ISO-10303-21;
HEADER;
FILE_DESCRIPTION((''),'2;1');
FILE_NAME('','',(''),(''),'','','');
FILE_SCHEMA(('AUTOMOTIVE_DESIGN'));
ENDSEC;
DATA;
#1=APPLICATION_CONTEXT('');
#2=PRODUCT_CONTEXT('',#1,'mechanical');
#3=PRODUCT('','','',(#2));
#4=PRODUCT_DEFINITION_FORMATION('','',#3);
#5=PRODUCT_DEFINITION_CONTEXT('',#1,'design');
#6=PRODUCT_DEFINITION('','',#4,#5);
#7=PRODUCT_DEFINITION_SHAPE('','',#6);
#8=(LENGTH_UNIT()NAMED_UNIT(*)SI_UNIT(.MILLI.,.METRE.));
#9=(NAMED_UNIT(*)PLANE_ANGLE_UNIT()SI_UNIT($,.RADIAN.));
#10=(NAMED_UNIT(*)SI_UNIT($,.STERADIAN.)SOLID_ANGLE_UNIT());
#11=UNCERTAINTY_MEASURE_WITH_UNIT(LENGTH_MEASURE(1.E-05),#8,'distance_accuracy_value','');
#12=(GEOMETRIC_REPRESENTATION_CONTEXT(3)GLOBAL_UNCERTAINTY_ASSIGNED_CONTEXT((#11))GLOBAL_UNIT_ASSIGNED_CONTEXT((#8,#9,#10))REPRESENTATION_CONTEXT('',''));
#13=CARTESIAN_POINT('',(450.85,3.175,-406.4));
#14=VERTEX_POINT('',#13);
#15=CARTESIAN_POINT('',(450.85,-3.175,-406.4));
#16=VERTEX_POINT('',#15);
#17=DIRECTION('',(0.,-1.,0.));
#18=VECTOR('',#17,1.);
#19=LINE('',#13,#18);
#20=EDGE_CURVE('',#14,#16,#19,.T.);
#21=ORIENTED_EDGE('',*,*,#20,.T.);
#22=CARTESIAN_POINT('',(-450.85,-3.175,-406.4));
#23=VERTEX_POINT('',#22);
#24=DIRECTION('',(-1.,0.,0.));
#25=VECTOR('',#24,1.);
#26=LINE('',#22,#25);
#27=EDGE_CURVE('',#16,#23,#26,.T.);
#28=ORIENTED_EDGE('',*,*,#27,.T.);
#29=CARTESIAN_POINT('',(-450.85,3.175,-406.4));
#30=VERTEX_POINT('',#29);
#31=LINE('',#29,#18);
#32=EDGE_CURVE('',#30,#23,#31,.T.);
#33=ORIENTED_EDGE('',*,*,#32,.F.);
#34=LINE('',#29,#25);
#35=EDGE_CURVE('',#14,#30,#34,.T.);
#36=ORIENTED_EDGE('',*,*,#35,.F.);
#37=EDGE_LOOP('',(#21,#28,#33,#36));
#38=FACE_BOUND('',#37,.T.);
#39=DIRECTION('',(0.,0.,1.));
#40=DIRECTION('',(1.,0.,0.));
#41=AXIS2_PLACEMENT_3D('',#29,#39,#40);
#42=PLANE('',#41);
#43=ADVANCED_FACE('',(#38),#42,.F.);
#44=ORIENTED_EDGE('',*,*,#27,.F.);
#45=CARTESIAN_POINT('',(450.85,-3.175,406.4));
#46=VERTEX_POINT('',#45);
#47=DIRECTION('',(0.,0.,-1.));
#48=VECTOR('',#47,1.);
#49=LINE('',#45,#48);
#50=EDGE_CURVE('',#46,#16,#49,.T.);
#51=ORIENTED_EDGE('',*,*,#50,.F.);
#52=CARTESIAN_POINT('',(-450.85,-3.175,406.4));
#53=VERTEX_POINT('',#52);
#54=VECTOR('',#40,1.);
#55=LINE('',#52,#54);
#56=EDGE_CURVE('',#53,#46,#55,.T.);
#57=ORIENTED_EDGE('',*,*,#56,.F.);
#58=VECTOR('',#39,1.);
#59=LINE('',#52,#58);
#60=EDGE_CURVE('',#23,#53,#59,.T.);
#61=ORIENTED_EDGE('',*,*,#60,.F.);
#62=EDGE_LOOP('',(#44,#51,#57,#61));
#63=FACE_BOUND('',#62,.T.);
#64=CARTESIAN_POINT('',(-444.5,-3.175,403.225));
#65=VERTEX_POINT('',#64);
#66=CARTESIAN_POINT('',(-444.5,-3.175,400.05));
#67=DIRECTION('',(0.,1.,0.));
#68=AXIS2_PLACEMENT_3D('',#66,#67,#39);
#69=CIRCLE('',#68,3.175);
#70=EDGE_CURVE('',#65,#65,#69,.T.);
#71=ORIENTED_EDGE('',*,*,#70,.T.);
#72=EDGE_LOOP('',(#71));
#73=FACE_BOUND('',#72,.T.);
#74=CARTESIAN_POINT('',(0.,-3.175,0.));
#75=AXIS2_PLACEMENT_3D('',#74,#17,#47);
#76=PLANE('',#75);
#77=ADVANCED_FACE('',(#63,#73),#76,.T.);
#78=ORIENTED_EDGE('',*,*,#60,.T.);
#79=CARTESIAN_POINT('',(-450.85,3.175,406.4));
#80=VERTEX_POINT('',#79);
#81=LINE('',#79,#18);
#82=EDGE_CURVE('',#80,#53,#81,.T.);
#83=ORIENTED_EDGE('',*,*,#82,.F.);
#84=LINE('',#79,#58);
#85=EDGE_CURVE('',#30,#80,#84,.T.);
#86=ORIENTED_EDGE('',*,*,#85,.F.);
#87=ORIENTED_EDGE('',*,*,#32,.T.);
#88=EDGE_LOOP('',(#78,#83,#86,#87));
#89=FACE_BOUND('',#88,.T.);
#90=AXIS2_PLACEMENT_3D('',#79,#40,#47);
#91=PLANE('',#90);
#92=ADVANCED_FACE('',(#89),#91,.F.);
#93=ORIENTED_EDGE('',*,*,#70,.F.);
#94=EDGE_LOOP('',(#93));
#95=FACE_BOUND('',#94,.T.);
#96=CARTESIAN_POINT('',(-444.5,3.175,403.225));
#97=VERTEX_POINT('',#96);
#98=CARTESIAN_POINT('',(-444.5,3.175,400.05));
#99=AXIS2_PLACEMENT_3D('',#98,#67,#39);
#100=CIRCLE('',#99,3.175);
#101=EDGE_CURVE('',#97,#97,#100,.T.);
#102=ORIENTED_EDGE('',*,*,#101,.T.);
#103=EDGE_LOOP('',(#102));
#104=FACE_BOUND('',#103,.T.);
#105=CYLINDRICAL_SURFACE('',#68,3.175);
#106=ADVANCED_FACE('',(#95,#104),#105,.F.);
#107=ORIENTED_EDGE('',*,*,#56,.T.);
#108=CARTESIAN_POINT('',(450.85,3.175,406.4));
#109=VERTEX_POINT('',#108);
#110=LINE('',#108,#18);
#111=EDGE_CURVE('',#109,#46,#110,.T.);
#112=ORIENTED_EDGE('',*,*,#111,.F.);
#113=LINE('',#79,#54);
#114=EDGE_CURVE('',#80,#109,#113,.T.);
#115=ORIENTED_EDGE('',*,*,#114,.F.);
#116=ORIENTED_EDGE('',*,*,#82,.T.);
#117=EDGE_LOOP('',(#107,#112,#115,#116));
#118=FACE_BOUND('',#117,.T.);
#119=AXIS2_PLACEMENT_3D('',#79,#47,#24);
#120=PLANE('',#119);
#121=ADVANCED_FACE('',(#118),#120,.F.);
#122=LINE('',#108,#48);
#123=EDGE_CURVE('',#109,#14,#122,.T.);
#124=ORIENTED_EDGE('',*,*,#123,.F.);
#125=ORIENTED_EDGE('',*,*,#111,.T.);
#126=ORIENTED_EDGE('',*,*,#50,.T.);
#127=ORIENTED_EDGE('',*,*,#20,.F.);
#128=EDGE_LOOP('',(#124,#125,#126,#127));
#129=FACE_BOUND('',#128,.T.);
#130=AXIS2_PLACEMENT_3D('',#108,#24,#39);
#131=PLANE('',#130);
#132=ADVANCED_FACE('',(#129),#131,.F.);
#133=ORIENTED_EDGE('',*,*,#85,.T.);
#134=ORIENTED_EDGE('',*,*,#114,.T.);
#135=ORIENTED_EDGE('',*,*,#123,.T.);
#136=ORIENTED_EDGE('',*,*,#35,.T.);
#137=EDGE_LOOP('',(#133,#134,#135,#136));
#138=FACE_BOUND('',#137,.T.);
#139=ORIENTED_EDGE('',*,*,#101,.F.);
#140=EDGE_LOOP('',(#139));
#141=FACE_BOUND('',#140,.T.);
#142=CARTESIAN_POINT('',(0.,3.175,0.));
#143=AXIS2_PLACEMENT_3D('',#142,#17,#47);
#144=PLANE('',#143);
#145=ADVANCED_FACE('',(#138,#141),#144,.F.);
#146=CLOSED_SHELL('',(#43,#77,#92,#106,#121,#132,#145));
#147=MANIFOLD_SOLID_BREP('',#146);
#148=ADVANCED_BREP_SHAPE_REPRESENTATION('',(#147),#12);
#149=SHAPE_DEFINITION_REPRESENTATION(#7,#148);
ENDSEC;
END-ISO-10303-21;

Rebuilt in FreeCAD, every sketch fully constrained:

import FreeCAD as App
import Part
import Sketcher
from FreeCAD import Vector
Q = App.Units.Quantity


def add_polygon(sketch, points):
    """Adds a closed chain of lines whose ends are joined by coincident constraints."""
    first, n = sketch.GeometryCount, len(points)
    for a, b in zip(points, points[1:] + points[:1]):
        sketch.addGeometry(Part.LineSegment(App.Vector(*a, 0), App.Vector(*b, 0)), False)
    for i in range(n):
        sketch.addConstraint(Sketcher.Constraint("Coincident", first + i, 2, first + (i + 1) % n, 1))

doc = App.newDocument("Part")
body = doc.addObject("PartDesign::Body", "Body")

# Sketch on XZ plane
sketch1 = doc.addObject("Sketcher::SketchObject", "Sketch")
body.addObject(sketch1)
sketch1.AttachmentSupport = (doc.XZ_Plane, [""])
sketch1.MapMode = "FlatFace"
add_polygon(sketch1, [(-451, -406), (-451, 406), (451, 406), (451, -406)])  # lines 0-3
sketch1.addConstraint([
    Sketcher.Constraint("Vertical", 0),
    Sketcher.Constraint("Horizontal", 1),
    Sketcher.Constraint("Vertical", 2),
    Sketcher.Constraint("Horizontal", 3),
    Sketcher.Constraint("Symmetric", 0, 2, 2, 2, -1, 1),
    Sketcher.Constraint("DistanceY", 0, 1, 0, 2, Q("32 in")),
    Sketcher.Constraint("DistanceX", 1, 1, 1, 2, Q("35.5 in")),
])
pad1 = doc.addObject("PartDesign::Pad", "Pad")
body.addObject(pad1)
pad1.Profile = sketch1
pad1.Length = Q("0.25 in")
pad1.Midplane = True

# Sketch on XZ plane
sketch2 = doc.addObject("Sketcher::SketchObject", "Sketch001")
body.addObject(sketch2)
sketch2.AttachmentSupport = (doc.XZ_Plane, [""])
sketch2.MapMode = "FlatFace"
sketch2.AttachmentOffset = App.Placement(Vector(0, 0, -0.125 * 25.4), App.Rotation())
sketch2.addGeometry(Part.Circle(Vector(-444.5, 400.1, 0), Vector(0, 0, 1), 3.2), False)
sketch2.addConstraint([
    Sketcher.Constraint("Diameter", 0, Q("0.25 in")),
    Sketcher.Constraint("DistanceX", 0, 3, -1, 1, Q("17.5 in")),
    Sketcher.Constraint("DistanceY", -1, 1, 0, 3, Q("15.75 in")),
])
pocket1 = doc.addObject("PartDesign::Pocket", "Pocket")
body.addObject(pocket1)
pocket1.Profile = sketch2
pocket1.Type = "ThroughAll"
pocket1.Reversed = True

doc.recompute()
